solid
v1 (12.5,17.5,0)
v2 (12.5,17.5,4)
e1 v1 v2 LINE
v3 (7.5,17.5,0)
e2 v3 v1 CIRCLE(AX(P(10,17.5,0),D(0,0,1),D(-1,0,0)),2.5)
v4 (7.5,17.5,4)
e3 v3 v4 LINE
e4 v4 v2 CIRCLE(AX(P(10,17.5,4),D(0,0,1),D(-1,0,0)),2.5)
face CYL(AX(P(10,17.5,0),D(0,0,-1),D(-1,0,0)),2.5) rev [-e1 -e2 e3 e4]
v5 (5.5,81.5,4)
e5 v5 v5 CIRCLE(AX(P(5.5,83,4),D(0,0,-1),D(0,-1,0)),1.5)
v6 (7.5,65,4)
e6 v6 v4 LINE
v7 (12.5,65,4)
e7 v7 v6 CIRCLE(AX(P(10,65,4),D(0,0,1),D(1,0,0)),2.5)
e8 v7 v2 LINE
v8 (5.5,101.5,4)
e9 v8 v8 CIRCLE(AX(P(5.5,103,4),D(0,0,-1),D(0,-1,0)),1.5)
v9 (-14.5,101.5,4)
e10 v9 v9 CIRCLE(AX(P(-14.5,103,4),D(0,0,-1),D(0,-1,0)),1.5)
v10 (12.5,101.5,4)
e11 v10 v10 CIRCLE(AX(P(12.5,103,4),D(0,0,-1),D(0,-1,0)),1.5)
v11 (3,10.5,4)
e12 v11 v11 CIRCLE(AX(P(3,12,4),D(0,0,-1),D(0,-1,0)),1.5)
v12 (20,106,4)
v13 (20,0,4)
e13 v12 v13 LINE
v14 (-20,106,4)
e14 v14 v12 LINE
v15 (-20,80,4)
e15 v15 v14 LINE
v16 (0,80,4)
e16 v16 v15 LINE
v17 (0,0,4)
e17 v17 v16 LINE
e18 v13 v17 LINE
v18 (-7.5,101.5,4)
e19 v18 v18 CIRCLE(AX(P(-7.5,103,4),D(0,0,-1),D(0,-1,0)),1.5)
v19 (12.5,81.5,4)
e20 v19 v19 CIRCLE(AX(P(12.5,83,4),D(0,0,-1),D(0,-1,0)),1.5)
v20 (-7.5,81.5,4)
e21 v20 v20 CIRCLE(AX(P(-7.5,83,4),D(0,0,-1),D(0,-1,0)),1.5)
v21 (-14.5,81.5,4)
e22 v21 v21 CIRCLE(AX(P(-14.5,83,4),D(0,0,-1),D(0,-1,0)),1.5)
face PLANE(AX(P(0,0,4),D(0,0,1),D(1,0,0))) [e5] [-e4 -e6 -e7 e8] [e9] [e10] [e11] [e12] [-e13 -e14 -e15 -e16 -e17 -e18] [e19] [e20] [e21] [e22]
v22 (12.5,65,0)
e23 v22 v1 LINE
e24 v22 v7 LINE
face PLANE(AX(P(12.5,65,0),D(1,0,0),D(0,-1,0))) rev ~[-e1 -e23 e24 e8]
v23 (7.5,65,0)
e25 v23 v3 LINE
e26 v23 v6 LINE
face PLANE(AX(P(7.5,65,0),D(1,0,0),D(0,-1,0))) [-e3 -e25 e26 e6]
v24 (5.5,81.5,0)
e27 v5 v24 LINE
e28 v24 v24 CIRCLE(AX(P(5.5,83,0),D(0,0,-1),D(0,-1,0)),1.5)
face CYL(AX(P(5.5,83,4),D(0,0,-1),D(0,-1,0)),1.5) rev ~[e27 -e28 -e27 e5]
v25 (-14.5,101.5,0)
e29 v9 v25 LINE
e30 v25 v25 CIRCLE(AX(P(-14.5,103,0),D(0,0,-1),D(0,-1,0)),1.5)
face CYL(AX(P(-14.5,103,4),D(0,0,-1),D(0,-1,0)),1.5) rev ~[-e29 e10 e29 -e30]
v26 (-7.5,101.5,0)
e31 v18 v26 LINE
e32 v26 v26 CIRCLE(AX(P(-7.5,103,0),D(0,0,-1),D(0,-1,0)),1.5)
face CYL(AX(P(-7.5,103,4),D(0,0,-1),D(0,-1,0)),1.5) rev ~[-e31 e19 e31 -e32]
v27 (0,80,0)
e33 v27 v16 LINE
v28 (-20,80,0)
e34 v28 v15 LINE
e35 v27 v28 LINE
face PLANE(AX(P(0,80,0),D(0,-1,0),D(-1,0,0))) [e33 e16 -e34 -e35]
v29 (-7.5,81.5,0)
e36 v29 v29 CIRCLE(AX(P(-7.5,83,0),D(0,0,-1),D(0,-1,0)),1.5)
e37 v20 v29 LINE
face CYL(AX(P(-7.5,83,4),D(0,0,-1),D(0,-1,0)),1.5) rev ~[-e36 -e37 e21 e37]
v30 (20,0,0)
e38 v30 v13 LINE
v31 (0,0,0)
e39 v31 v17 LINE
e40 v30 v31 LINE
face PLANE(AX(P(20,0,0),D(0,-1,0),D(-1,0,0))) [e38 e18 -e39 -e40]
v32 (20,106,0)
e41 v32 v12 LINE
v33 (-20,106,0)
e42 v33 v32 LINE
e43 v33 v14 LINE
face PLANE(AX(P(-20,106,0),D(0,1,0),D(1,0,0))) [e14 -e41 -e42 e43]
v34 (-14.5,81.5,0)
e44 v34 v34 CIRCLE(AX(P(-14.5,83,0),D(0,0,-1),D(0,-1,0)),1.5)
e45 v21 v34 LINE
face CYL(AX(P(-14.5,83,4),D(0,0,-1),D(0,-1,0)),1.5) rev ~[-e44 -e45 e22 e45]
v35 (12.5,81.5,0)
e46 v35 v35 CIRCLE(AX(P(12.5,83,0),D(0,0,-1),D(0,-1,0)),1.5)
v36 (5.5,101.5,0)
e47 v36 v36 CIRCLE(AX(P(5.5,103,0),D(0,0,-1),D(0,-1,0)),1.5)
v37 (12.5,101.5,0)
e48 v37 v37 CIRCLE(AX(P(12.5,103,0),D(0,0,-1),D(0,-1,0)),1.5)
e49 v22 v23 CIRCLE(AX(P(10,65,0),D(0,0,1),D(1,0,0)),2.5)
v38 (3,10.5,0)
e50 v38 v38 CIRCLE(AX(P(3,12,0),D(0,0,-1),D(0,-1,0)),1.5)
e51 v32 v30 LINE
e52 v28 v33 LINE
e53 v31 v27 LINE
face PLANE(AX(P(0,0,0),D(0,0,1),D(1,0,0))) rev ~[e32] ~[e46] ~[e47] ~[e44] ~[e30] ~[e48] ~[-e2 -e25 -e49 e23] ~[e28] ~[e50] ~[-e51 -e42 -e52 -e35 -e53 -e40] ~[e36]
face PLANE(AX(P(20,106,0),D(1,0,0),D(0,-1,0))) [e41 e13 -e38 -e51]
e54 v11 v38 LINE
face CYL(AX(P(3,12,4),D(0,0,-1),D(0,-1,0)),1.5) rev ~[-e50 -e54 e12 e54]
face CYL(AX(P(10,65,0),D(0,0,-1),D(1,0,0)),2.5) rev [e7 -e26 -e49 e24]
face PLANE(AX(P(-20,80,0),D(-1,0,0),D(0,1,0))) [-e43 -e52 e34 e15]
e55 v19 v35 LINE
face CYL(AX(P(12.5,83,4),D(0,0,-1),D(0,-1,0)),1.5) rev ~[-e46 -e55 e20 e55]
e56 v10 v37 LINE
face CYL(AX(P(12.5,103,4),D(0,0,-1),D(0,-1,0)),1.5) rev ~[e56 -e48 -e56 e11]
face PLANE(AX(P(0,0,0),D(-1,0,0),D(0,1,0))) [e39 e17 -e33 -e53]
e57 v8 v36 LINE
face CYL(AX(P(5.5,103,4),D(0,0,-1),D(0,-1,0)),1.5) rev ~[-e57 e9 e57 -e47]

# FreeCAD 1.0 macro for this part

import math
import FreeCAD as App
import Part
import Sketcher
from FreeCAD import Vector
Q = App.Units.Quantity


def add_polygon(sketch, points):
    """Adds a closed chain of lines whose ends are joined by coincident constraints."""
    first, n = sketch.GeometryCount, len(points)
    for a, b in zip(points, points[1:] + points[:1]):
        sketch.addGeometry(Part.LineSegment(App.Vector(*a, 0), App.Vector(*b, 0)), False)
    for i in range(n):
        sketch.addConstraint(Sketcher.Constraint("Coincident", first + i, 2, first + (i + 1) % n, 1))

doc = App.newDocument("Part")
body = doc.addObject("PartDesign::Body", "Body")

# Sketch on XY plane
sketch1 = doc.addObject("Sketcher::SketchObject", "Sketch")
body.addObject(sketch1)
sketch1.AttachmentSupport = (doc.XY_Plane, [""])
sketch1.MapMode = "FlatFace"
add_polygon(sketch1, [(0, 80), (0, 0), (20, 0), (20, 106), (-20, 106), (-20, 80)])  # lines 0-5
sketch1.addGeometry(Part.ArcOfCircle(Part.Circle(Vector(10, 17.5, 0), Vector(0, 0, 1), 2.5), math.radians(180), math.radians(360)), False)  # 6
sketch1.addGeometry(Part.LineSegment(Vector(7.5, 17.5, 0), Vector(7.5, 65, 0)), False)  # 7
sketch1.addGeometry(Part.ArcOfCircle(Part.Circle(Vector(10, 65, 0), Vector(0, 0, 1), 2.5), math.radians(0), math.radians(180)), False)  # 8
sketch1.addGeometry(Part.LineSegment(Vector(12.5, 65, 0), Vector(12.5, 17.5, 0)), False)  # 9
sketch1.addConstraint(Sketcher.Constraint("Tangent", 6, 1, 7, 1))
sketch1.addConstraint(Sketcher.Constraint("Tangent", 7, 2, 8, 2))
sketch1.addConstraint(Sketcher.Constraint("Tangent", 8, 1, 9, 1))
sketch1.addConstraint(Sketcher.Constraint("Tangent", 9, 2, 6, 2))
sketch1.addConstraint(Sketcher.Constraint("Vertical", 0))
sketch1.addConstraint(Sketcher.Constraint("Horizontal", 1))
sketch1.addConstraint(Sketcher.Constraint("Vertical", 2))
sketch1.addConstraint(Sketcher.Constraint("Horizontal", 3))
sketch1.addConstraint(Sketcher.Constraint("Vertical", 4))
sketch1.addConstraint(Sketcher.Constraint("Horizontal", 5))
sketch1.addConstraint(Sketcher.Constraint("Vertical", 7))
sketch1.addConstraint(Sketcher.Constraint("Vertical", 9))
sketch1.addConstraint(Sketcher.Constraint("Coincident", 0, 2, -1, 1))
sketch1.addConstraint(Sketcher.Constraint("Equal", 1, 5))
sketch1.addConstraint(Sketcher.Constraint("Radius", 6, Q("2.5 mm")))
sketch1.addConstraint(Sketcher.Constraint("DistanceX", 1, 1, 1, 2, Q("20 mm")))
sketch1.addConstraint(Sketcher.Constraint("DistanceY", 0, 2, 0, 1, Q("80 mm")))
sketch1.addConstraint(Sketcher.Constraint("DistanceY", 4, 2, 4, 1, Q("26 mm")))
sketch1.addConstraint(Sketcher.Constraint("DistanceX", -1, 1, 6, 3, Q("10 mm")))
sketch1.addConstraint(Sketcher.Constraint("DistanceY", -1, 1, 8, 3, Q("65 mm")))
sketch1.addConstraint(Sketcher.Constraint("DistanceY", 7, 1, 7, 2, Q("47.5 mm")))
pad1 = doc.addObject("PartDesign::Pad", "Pad")
body.addObject(pad1)
pad1.Profile = sketch1
pad1.Length = 4

# Sketch on XY plane
sketch2 = doc.addObject("Sketcher::SketchObject", "Sketch001")
body.addObject(sketch2)
sketch2.AttachmentSupport = (doc.XY_Plane, [""])
sketch2.MapMode = "FlatFace"
sketch2.AttachmentOffset = App.Placement(Vector(0, 0, 4), App.Rotation())
sketch2.addGeometry(Part.Circle(Vector(-14.5, 83, 0), Vector(0, 0, 1), 1.5), False)
sketch2.addConstraint(Sketcher.Constraint("Diameter", 0, Q("3 mm")))
sketch2.addConstraint(Sketcher.Constraint("DistanceY", -1, 1, 0, 3, Q("83 mm")))
sketch2.addConstraint(Sketcher.Constraint("DistanceX", 0, 3, -1, 1, Q("14.5 mm")))
doc.recompute()
hole = doc.addObject("PartDesign::Hole", "Hole")
body.addObject(hole)
hole.Profile = sketch2
hole.ThreadType = "None"
hole.Diameter = 3
hole.DepthType = "Dimension"
hole.Depth = 8
hole.DrillPoint = "Angled"
hole.DrillPointAngle = 118

# Sketch on XY plane
sketch3 = doc.addObject("Sketcher::SketchObject", "Sketch002")
body.addObject(sketch3)
sketch3.AttachmentSupport = (doc.XY_Plane, [""])
sketch3.MapMode = "FlatFace"
sketch3.AttachmentOffset = App.Placement(Vector(0, 0, 4), App.Rotation())
sketch3.addGeometry(Part.Circle(Vector(-7.5, 83, 0), Vector(0, 0, 1), 1.5), False)
sketch3.addConstraint(Sketcher.Constraint("Diameter", 0, Q("3 mm")))
sketch3.addConstraint(Sketcher.Constraint("DistanceY", -1, 1, 0, 3, Q("83 mm")))
sketch3.addConstraint(Sketcher.Constraint("DistanceX", 0, 3, -1, 1, Q("7.5 mm")))
doc.recompute()
hole2 = doc.addObject("PartDesign::Hole", "Hole001")
body.addObject(hole2)
hole2.Profile = sketch3
hole2.ThreadType = "None"
hole2.Diameter = 3
hole2.DepthType = "Dimension"
hole2.Depth = 8
hole2.DrillPoint = "Angled"
hole2.DrillPointAngle = 118

# Sketch on XY plane
sketch4 = doc.addObject("Sketcher::SketchObject", "Sketch003")
body.addObject(sketch4)
sketch4.AttachmentSupport = (doc.XY_Plane, [""])
sketch4.MapMode = "FlatFace"
sketch4.AttachmentOffset = App.Placement(Vector(0, 0, 4), App.Rotation())
sketch4.addGeometry(Part.Circle(Vector(5.5, 83, 0), Vector(0, 0, 1), 1.5), False)
sketch4.addConstraint(Sketcher.Constraint("Diameter", 0, Q("3 mm")))
sketch4.addConstraint(Sketcher.Constraint("DistanceY", -1, 1, 0, 3, Q("83 mm")))
sketch4.addConstraint(Sketcher.Constraint("DistanceX", -1, 1, 0, 3, Q("5.5 mm")))
doc.recompute()
hole3 = doc.addObject("PartDesign::Hole", "Hole002")
body.addObject(hole3)
hole3.Profile = sketch4
hole3.ThreadType = "None"
hole3.Diameter = 3
hole3.DepthType = "Dimension"
hole3.Depth = 8
hole3.DrillPoint = "Angled"
hole3.DrillPointAngle = 118

# Sketch on XY plane
sketch5 = doc.addObject("Sketcher::SketchObject", "Sketch004")
body.addObject(sketch5)
sketch5.AttachmentSupport = (doc.XY_Plane, [""])
sketch5.MapMode = "FlatFace"
sketch5.AttachmentOffset = App.Placement(Vector(0, 0, 4), App.Rotation())
sketch5.addGeometry(Part.Circle(Vector(12.5, 83, 0), Vector(0, 0, 1), 1.5), False)
sketch5.addConstraint(Sketcher.Constraint("Diameter", 0, Q("3 mm")))
sketch5.addConstraint(Sketcher.Constraint("DistanceY", -1, 1, 0, 3, Q("83 mm")))
sketch5.addConstraint(Sketcher.Constraint("DistanceX", -1, 1, 0, 3, Q("12.5 mm")))
doc.recompute()
hole4 = doc.addObject("PartDesign::Hole", "Hole003")
body.addObject(hole4)
hole4.Profile = sketch5
hole4.ThreadType = "None"
hole4.Diameter = 3
hole4.DepthType = "Dimension"
hole4.Depth = 8
hole4.DrillPoint = "Angled"
hole4.DrillPointAngle = 118

# Sketch on XY plane
sketch6 = doc.addObject("Sketcher::SketchObject", "Sketch005")
body.addObject(sketch6)
sketch6.AttachmentSupport = (doc.XY_Plane, [""])
sketch6.MapMode = "FlatFace"
sketch6.AttachmentOffset = App.Placement(Vector(0, 0, 4), App.Rotation())
sketch6.addGeometry(Part.Circle(Vector(-14.5, 103, 0), Vector(0, 0, 1), 1.5), False)
sketch6.addConstraint(Sketcher.Constraint("Diameter", 0, Q("3 mm")))
sketch6.addConstraint(Sketcher.Constraint("DistanceY", -1, 1, 0, 3, Q("103 mm")))
sketch6.addConstraint(Sketcher.Constraint("DistanceX", 0, 3, -1, 1, Q("14.5 mm")))
doc.recompute()
hole5 = doc.addObject("PartDesign::Hole", "Hole004")
body.addObject(hole5)
hole5.Profile = sketch6
hole5.ThreadType = "None"
hole5.Diameter = 3
hole5.DepthType = "Dimension"
hole5.Depth = 8
hole5.DrillPoint = "Angled"
hole5.DrillPointAngle = 118

# Sketch on XY plane
sketch7 = doc.addObject("Sketcher::SketchObject", "Sketch006")
body.addObject(sketch7)
sketch7.AttachmentSupport = (doc.XY_Plane, [""])
sketch7.MapMode = "FlatFace"
sketch7.AttachmentOffset = App.Placement(Vector(0, 0, 4), App.Rotation())
sketch7.addGeometry(Part.Circle(Vector(-7.5, 103, 0), Vector(0, 0, 1), 1.5), False)
sketch7.addConstraint(Sketcher.Constraint("Diameter", 0, Q("3 mm")))
sketch7.addConstraint(Sketcher.Constraint("DistanceY", -1, 1, 0, 3, Q("103 mm")))
sketch7.addConstraint(Sketcher.Constraint("DistanceX", 0, 3, -1, 1, Q("7.5 mm")))
doc.recompute()
hole6 = doc.addObject("PartDesign::Hole", "Hole005")
body.addObject(hole6)
hole6.Profile = sketch7
hole6.ThreadType = "None"
hole6.Diameter = 3
hole6.DepthType = "Dimension"
hole6.Depth = 8
hole6.DrillPoint = "Angled"
hole6.DrillPointAngle = 118

# Sketch on XY plane
sketch8 = doc.addObject("Sketcher::SketchObject", "Sketch007")
body.addObject(sketch8)
sketch8.AttachmentSupport = (doc.XY_Plane, [""])
sketch8.MapMode = "FlatFace"
sketch8.AttachmentOffset = App.Placement(Vector(0, 0, 4), App.Rotation())
sketch8.addGeometry(Part.Circle(Vector(5.5, 103, 0), Vector(0, 0, 1), 1.5), False)
sketch8.addConstraint(Sketcher.Constraint("Diameter", 0, Q("3 mm")))
sketch8.addConstraint(Sketcher.Constraint("DistanceY", -1, 1, 0, 3, Q("103 mm")))
sketch8.addConstraint(Sketcher.Constraint("DistanceX", -1, 1, 0, 3, Q("5.5 mm")))
doc.recompute()
hole7 = doc.addObject("PartDesign::Hole", "Hole006")
body.addObject(hole7)
hole7.Profile = sketch8
hole7.ThreadType = "None"
hole7.Diameter = 3
hole7.DepthType = "Dimension"
hole7.Depth = 8
hole7.DrillPoint = "Angled"
hole7.DrillPointAngle = 118

# Sketch on XY plane
sketch9 = doc.addObject("Sketcher::SketchObject", "Sketch008")
body.addObject(sketch9)
sketch9.AttachmentSupport = (doc.XY_Plane, [""])
sketch9.MapMode = "FlatFace"
sketch9.AttachmentOffset = App.Placement(Vector(0, 0, 4), App.Rotation())
sketch9.addGeometry(Part.Circle(Vector(12.5, 103, 0), Vector(0, 0, 1), 1.5), False)
sketch9.addConstraint(Sketcher.Constraint("Diameter", 0, Q("3 mm")))
sketch9.addConstraint(Sketcher.Constraint("DistanceY", -1, 1, 0, 3, Q("103 mm")))
sketch9.addConstraint(Sketcher.Constraint("DistanceX", -1, 1, 0, 3, Q("12.5 mm")))
doc.recompute()
hole8 = doc.addObject("PartDesign::Hole", "Hole007")
body.addObject(hole8)
hole8.Profile = sketch9
hole8.ThreadType = "None"
hole8.Diameter = 3
hole8.DepthType = "Dimension"
hole8.Depth = 8
hole8.DrillPoint = "Angled"
hole8.DrillPointAngle = 118

# Sketch on XY plane
sketch10 = doc.addObject("Sketcher::SketchObject", "Sketch009")
body.addObject(sketch10)
sketch10.AttachmentSupport = (doc.XY_Plane, [""])
sketch10.MapMode = "FlatFace"
sketch10.AttachmentOffset = App.Placement(Vector(0, 0, 4), App.Rotation())
sketch10.addGeometry(Part.Circle(Vector(3, 12, 0), Vector(0, 0, 1), 1.5), False)
sketch10.addConstraint(Sketcher.Constraint("Diameter", 0, Q("3 mm")))
sketch10.addConstraint(Sketcher.Constraint("DistanceX", -1, 1, 0, 3, Q("3 mm")))
sketch10.addConstraint(Sketcher.Constraint("DistanceY", -1, 1, 0, 3, Q("12 mm")))
doc.recompute()
hole9 = doc.addObject("PartDesign::Hole", "Hole008")
body.addObject(hole9)
hole9.Profile = sketch10
hole9.ThreadType = "None"
hole9.Diameter = 3
hole9.DepthType = "Dimension"
hole9.Depth = 8
hole9.DrillPoint = "Angled"
hole9.DrillPointAngle = 118

doc.recompute()
